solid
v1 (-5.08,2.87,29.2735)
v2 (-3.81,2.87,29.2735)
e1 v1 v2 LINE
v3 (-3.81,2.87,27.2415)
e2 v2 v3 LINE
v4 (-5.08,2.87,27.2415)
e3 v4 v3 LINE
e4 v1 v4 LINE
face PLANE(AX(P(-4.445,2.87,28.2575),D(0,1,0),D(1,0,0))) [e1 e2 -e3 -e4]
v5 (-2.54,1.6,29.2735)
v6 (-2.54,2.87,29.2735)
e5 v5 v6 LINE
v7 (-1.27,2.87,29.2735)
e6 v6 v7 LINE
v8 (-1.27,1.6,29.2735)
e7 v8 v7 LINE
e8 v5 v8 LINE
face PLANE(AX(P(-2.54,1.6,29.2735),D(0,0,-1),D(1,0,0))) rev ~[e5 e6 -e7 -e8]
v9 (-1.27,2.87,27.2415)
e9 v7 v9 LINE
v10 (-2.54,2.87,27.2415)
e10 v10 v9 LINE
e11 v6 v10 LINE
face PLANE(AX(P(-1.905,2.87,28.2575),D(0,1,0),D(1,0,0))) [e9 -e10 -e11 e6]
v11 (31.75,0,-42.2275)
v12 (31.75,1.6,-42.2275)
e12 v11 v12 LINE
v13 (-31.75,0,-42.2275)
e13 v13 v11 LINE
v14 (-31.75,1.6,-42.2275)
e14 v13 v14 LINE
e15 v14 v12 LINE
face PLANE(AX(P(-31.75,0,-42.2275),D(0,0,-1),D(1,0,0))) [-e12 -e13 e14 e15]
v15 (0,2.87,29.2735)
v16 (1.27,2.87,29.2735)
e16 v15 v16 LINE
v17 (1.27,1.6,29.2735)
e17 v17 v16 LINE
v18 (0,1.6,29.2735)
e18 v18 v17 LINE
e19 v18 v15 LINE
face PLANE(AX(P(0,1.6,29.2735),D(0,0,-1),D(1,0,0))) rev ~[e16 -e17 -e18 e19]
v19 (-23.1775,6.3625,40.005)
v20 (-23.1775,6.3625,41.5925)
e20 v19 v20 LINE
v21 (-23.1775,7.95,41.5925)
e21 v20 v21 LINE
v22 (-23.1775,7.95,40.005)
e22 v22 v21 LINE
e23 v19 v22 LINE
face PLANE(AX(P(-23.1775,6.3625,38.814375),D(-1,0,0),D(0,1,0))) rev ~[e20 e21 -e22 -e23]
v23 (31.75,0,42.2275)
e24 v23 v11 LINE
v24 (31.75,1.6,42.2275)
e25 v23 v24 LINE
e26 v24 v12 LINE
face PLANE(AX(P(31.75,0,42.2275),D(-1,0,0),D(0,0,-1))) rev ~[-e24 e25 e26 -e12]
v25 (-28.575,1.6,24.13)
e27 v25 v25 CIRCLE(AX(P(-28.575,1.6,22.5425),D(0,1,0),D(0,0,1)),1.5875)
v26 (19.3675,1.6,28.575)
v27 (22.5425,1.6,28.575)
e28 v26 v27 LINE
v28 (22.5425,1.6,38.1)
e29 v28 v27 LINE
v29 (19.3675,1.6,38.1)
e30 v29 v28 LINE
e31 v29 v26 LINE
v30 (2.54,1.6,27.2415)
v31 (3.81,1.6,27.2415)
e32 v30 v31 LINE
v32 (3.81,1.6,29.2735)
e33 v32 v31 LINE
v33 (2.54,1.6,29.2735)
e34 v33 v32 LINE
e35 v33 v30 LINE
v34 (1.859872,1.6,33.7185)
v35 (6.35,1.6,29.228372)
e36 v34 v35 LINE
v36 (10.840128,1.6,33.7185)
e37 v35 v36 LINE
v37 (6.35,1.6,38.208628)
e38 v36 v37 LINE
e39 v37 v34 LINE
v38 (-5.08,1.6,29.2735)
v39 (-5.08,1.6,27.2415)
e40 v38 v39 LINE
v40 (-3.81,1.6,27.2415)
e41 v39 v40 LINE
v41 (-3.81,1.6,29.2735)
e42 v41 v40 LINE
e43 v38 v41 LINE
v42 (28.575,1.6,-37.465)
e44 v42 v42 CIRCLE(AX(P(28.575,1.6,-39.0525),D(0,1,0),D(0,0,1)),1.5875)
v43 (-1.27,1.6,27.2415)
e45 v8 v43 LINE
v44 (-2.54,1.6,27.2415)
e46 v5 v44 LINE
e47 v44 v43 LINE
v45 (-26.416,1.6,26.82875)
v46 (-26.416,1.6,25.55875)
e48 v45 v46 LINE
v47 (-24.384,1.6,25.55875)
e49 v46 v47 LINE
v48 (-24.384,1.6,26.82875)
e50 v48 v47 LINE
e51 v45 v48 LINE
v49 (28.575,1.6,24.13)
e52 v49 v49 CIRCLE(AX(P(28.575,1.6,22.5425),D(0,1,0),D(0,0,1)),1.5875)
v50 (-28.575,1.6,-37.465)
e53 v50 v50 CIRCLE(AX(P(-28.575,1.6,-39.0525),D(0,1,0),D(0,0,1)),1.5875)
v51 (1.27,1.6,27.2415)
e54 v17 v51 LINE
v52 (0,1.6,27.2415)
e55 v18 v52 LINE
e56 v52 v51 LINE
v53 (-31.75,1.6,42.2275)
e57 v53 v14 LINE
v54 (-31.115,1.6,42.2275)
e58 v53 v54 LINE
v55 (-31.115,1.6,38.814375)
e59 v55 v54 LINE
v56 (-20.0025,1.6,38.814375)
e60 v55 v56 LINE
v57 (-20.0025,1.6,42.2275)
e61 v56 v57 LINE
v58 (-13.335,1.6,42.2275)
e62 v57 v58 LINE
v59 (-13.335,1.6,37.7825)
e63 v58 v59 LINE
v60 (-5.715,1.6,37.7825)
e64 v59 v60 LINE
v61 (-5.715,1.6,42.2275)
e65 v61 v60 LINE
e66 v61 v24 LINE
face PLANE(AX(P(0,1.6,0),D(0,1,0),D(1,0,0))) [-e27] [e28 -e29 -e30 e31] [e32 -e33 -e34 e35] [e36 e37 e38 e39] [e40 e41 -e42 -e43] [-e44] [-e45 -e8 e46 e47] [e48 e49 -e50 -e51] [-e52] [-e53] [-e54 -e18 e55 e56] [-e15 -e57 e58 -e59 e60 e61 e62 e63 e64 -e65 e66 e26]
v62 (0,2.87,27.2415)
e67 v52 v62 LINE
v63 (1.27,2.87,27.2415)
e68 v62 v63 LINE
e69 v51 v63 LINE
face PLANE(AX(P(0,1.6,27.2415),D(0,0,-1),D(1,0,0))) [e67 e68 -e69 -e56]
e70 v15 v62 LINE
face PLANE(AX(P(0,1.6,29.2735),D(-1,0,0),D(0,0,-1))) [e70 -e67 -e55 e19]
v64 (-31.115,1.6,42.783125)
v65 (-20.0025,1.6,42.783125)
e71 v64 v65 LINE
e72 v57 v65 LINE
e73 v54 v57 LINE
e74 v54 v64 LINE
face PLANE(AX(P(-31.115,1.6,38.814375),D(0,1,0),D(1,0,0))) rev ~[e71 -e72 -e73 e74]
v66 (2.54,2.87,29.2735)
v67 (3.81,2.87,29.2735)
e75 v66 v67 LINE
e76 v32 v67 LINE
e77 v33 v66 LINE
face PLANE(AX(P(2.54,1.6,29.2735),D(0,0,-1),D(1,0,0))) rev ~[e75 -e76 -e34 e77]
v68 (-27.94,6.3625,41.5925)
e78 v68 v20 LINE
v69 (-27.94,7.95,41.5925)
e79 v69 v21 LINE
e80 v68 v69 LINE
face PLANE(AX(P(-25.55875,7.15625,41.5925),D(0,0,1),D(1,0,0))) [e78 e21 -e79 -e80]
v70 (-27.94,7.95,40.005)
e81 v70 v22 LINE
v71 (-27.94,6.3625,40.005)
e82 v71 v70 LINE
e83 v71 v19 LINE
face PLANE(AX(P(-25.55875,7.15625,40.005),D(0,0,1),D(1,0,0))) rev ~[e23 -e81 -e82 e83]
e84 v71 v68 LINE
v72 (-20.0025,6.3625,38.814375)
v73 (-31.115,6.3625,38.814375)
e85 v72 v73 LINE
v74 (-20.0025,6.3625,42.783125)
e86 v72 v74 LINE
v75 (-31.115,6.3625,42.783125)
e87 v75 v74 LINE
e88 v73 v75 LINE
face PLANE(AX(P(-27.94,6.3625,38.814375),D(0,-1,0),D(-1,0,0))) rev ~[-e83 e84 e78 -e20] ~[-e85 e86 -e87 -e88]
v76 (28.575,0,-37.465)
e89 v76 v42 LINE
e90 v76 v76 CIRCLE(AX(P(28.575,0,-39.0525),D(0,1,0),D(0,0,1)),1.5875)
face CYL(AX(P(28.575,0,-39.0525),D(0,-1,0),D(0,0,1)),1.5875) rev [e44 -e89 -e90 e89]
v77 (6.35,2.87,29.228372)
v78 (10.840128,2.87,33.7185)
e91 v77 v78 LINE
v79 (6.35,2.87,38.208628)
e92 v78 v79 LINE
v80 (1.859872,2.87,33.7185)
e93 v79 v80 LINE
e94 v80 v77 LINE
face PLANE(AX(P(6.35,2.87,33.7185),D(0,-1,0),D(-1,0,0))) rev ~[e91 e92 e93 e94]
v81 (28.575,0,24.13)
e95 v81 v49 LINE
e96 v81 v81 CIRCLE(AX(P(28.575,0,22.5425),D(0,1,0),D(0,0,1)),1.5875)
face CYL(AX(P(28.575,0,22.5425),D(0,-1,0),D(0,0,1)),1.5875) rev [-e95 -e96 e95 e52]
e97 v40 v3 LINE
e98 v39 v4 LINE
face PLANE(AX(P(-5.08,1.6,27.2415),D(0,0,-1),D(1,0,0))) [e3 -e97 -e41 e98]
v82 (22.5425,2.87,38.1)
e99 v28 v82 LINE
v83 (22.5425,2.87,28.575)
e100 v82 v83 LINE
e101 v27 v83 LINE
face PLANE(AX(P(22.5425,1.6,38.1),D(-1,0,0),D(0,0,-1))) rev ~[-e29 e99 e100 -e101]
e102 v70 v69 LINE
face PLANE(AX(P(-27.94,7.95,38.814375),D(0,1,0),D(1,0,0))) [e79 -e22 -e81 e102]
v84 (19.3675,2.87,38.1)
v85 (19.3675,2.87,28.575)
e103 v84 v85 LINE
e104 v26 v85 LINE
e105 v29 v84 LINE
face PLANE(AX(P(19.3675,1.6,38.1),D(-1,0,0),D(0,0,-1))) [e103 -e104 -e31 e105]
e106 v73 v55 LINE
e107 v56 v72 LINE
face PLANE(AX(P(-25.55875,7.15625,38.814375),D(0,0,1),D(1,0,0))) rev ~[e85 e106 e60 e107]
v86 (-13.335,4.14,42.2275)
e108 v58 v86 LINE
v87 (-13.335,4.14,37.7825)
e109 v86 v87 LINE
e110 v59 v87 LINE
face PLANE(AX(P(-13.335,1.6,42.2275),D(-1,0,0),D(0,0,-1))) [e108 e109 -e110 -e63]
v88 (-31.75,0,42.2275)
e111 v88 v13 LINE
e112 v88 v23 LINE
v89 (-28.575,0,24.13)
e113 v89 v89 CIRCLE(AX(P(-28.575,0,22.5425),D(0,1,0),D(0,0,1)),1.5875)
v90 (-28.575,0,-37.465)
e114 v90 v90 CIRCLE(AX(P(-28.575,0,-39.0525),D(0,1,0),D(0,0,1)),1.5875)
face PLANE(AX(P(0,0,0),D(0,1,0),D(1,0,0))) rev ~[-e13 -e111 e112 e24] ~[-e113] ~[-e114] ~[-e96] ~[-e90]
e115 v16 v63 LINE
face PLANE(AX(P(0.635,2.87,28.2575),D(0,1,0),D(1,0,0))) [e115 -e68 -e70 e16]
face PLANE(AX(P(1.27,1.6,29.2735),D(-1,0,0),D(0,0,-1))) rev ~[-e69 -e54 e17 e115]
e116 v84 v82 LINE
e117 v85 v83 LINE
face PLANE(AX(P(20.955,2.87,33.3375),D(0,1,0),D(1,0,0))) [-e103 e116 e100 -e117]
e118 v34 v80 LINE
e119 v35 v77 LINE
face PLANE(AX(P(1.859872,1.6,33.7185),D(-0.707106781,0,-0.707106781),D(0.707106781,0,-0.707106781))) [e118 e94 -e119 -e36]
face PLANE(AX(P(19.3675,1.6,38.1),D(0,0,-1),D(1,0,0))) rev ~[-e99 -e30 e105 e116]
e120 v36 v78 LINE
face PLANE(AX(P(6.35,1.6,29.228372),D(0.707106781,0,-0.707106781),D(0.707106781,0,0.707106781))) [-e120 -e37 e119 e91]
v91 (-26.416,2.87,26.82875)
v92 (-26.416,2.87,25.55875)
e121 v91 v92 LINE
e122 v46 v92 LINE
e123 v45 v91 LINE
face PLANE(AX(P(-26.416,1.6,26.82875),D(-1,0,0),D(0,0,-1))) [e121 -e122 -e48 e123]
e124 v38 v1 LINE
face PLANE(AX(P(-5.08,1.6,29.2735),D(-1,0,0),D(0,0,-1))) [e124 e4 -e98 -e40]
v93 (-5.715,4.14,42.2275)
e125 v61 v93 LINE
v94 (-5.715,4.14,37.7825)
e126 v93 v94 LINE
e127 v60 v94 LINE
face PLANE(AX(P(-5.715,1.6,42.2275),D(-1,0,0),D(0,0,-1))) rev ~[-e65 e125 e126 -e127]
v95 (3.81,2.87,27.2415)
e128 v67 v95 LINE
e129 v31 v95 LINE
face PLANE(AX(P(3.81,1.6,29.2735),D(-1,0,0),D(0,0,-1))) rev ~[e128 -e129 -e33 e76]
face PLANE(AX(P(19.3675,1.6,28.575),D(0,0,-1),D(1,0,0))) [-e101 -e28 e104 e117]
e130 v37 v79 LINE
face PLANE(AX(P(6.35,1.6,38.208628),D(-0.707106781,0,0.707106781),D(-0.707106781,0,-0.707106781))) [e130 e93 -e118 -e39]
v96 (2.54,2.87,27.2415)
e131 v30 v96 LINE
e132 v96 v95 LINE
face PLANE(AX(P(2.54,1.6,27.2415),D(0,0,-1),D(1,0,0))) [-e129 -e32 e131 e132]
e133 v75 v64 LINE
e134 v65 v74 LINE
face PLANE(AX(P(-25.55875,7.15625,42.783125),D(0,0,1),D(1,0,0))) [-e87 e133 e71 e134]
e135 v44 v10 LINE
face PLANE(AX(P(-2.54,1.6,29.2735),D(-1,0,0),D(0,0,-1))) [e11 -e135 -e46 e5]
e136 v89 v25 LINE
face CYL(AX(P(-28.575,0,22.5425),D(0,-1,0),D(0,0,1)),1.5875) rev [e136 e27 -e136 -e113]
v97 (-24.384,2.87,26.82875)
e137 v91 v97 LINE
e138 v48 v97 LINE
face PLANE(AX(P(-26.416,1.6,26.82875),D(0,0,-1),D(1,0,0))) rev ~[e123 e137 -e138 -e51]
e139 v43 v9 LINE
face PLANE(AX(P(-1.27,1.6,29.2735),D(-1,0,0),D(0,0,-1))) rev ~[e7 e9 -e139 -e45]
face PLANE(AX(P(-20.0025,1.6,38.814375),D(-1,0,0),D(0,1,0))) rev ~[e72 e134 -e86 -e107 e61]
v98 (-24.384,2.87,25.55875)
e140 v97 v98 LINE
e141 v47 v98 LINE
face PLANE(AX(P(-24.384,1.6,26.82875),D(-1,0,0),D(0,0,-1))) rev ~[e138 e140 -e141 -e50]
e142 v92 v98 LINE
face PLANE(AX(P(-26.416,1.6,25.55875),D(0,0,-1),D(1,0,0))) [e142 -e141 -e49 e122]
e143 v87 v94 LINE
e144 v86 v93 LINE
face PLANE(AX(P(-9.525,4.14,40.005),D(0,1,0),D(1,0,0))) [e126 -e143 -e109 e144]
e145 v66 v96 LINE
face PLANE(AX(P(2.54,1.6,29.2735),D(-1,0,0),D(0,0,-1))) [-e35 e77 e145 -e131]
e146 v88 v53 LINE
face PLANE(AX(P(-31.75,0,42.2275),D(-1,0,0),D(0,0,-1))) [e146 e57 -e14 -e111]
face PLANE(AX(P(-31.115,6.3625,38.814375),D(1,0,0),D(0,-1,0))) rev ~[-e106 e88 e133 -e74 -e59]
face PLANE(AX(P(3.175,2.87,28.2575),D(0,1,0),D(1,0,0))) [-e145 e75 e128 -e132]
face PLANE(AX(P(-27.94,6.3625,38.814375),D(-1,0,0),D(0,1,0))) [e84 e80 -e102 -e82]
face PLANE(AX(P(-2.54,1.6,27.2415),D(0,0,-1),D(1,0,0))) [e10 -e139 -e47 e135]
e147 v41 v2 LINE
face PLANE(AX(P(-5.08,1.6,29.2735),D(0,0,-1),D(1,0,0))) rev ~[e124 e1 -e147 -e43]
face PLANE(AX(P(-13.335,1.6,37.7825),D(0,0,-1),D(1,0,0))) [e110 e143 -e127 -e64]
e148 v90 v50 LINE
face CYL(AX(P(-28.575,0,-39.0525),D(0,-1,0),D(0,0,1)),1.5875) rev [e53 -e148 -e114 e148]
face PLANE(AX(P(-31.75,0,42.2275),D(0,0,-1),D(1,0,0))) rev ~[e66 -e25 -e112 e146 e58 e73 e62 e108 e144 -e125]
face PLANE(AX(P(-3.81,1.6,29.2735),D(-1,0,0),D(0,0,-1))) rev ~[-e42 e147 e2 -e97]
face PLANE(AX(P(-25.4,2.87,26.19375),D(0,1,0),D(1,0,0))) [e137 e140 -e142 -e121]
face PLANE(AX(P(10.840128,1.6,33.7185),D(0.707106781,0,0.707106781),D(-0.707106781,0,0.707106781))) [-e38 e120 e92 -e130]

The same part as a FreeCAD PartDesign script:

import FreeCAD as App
import Part
import Sketcher

V = App.Vector
Q = App.Units.Quantity


def add_polygon(sketch, points):
    """Adds a closed chain of lines whose ends are joined by coincident constraints."""
    first, n = sketch.GeometryCount, len(points)
    for a, b in zip(points, points[1:] + points[:1]):
        sketch.addGeometry(Part.LineSegment(App.Vector(*a, 0), App.Vector(*b, 0)), False)
    for i in range(n):
        sketch.addConstraint(Sketcher.Constraint("Coincident", first + i, 2, first + (i + 1) % n, 1))

doc = App.newDocument("Part")
body = doc.addObject("PartDesign::Body", "Body")

sketch1 = body.newObject("Sketcher::SketchObject", "Sketch")
sketch1.AttachmentSupport = (doc.getObject("XZ_Plane"), [""])
sketch1.MapMode = "FlatFace"
add_polygon(sketch1, [(-31.8, -42.2), (-31.8, 42.2), (31.8, 42.2), (31.8, -42.2)])
sketch1.addGeometry(Part.Circle(V(-28.6, 22.5, 0), V(0, 0, 1), 1.6), False)
sketch1.addGeometry(Part.Circle(V(28.6, 22.5, 0), V(0, 0, 1), 1.6), False)
sketch1.addGeometry(Part.Circle(V(-28.6, -39.1, 0), V(0, 0, 1), 1.6), False)
sketch1.addGeometry(Part.Circle(V(28.6, -39.1, 0), V(0, 0, 1), 1.6), False)
sketch1.addConstraint([
    Sketcher.Constraint("Vertical", 0),
    Sketcher.Constraint("Horizontal", 1),
    Sketcher.Constraint("Vertical", 2),
    Sketcher.Constraint("Horizontal", 3),
    Sketcher.Constraint("Equal", 4, 5),
    Sketcher.Constraint("Equal", 5, 6),
    Sketcher.Constraint("Equal", 6, 7),
    Sketcher.Constraint("Symmetric", 0, 2, 2, 2, -1, 1),
    Sketcher.Constraint("Symmetric", 4, 3, 5, 3, -2),
    Sketcher.Constraint("Symmetric", 6, 3, 7, 3, -2),
    Sketcher.Constraint("Vertical", 4, 3, 6, 3),
    Sketcher.Constraint("Diameter", 4, Q("0.125 in")),
    Sketcher.Constraint("DistanceX", 1, 1, 1, 2, Q("2.5 in")),
    Sketcher.Constraint("DistanceY", 6, 3, 0, 2, Q("3.2 in")),
    Sketcher.Constraint("DistanceY", 0, 1, 0, 2, Q("3.325 in")),
    Sketcher.Constraint("DistanceX", 4, 3, 5, 3, Q("2.25 in")),
    Sketcher.Constraint("DistanceY", 2, 2, 5, 3, Q("2.55 in")),
])
pad1 = body.newObject("PartDesign::Pad", "Pad")
pad1.Profile = sketch1
pad1.Length = 1.6
pad1.Reversed = True

sketch2 = body.newObject("Sketcher::SketchObject", "Sketch001")
sketch2.AttachmentSupport = (doc.getObject("XZ_Plane"), [""])
sketch2.MapMode = "FlatFace"
sketch2.AttachmentOffset = App.Placement(V(0, 0, -1.6), App.Rotation())
add_polygon(sketch2, [(10.8, 33.7), (6.3, 29.2), (1.9, 33.7), (6.3, 38.2)])
add_polygon(sketch2, [(-2.5, 27.2), (-2.5, 29.3), (-1.3, 29.3), (-1.3, 27.2)])
add_polygon(sketch2, [(-5.1, 27.2), (-5.1, 29.3), (-3.8, 29.3), (-3.8, 27.2)])
add_polygon(sketch2, [(0, 27.2), (0, 29.3), (1.3, 29.3), (1.3, 27.2)])
add_polygon(sketch2, [(2.5, 27.2), (2.5, 29.3), (3.8, 29.3), (3.8, 27.2)])
add_polygon(sketch2, [(19.4, 28.6), (19.4, 38.1), (22.5, 38.1), (22.5, 28.6)])
add_polygon(sketch2, [(-26.4, 25.6), (-26.4, 26.8), (-24.4, 26.8), (-24.4, 25.6)])
sketch2.addConstraint([
    Sketcher.Constraint("Vertical", 4),
    Sketcher.Constraint("Horizontal", 5),
    Sketcher.Constraint("Vertical", 6),
    Sketcher.Constraint("Horizontal", 7),
    Sketcher.Constraint("Vertical", 8),
    Sketcher.Constraint("Horizontal", 9),
    Sketcher.Constraint("Vertical", 10),
    Sketcher.Constraint("Horizontal", 11),
    Sketcher.Constraint("Vertical", 12),
    Sketcher.Constraint("Horizontal", 13),
    Sketcher.Constraint("Vertical", 14),
    Sketcher.Constraint("Horizontal", 15),
    Sketcher.Constraint("Vertical", 16),
    Sketcher.Constraint("Horizontal", 17),
    Sketcher.Constraint("Vertical", 18),
    Sketcher.Constraint("Horizontal", 19),
    Sketcher.Constraint("Vertical", 20),
    Sketcher.Constraint("Horizontal", 21),
    Sketcher.Constraint("Vertical", 22),
    Sketcher.Constraint("Horizontal", 23),
    Sketcher.Constraint("Vertical", 24),
    Sketcher.Constraint("Horizontal", 25),
    Sketcher.Constraint("Vertical", 26),
    Sketcher.Constraint("Horizontal", 27),
    Sketcher.Constraint("Symmetric", 5, 2, 13, 2, -2),
    Sketcher.Constraint("Symmetric", 4, 2, 16, 2, -2),
    Sketcher.Constraint("Symmetric", 9, 2, 17, 2, -2),
    Sketcher.Constraint("PointOnObject", 12, 2, -2),
    Sketcher.Constraint("Perpendicular", 0, 1),
    Sketcher.Constraint("Perpendicular", 1, 2),
    Sketcher.Constraint("Perpendicular", 2, 3),
    Sketcher.Constraint("Horizontal", 1, 2, 3, 2),
    Sketcher.Constraint("Horizontal", 7, 2, 10, 2),
    Sketcher.Constraint("Horizontal", 11, 2, 14, 2),
    Sketcher.Constraint("Horizontal", 15, 2, 18, 2),
    Sketcher.Constraint("Vertical", 0, 2, 2, 2),
    Sketcher.Constraint("Equal", 7, 9),
    Sketcher.Constraint("Equal", 11, 13),
    Sketcher.Constraint("Equal", 15, 17),
    Sketcher.Constraint("Equal", 27, 4),
    Sketcher.Constraint("Equal", 19, 24),
    Sketcher.Constraint("DistanceX", 5, 1, 5, 2, Q("0.05 in")),
    Sketcher.Constraint("DistanceX", 25, 1, 25, 2, Q("0.08 in")),
    Sketcher.Constraint("DistanceY", -1, 1, 20, 2, Q("1.5 in")),
    Sketcher.Constraint("DistanceX", 5, 2, 0, 2, Q("0.3 in")),
    Sketcher.Constraint("Distance", 0, Q("0.25 in")),
    Sketcher.Constraint("DistanceX", 21, 1, 21, 2, Q("0.125 in")),
    Sketcher.Constraint("DistanceY", 20, 1, 20, 2, Q("0.375 in")),
    Sketcher.Constraint("DistanceX", 24, 2, -1, 1, Q("1.04 in")),
    Sketcher.Constraint("DistanceY", 4, 2, 1, 2, Q("0.175 in")),
    Sketcher.Constraint("DistanceY", -1, 1, 1, 2, Q("1.3275 in")),
    Sketcher.Constraint("DistanceX", -1, 1, 20, 2, Q("0.7625 in")),
    Sketcher.Constraint("DistanceY", -1, 1, 24, 2, 26.82875),
])
pad2 = body.newObject("PartDesign::Pad", "Pad001")
pad2.Profile = sketch2
pad2.Length = Q("0.05 in")
pad2.Reversed = True

sketch3 = body.newObject("Sketcher::SketchObject", "Sketch002")
sketch3.AttachmentSupport = (doc.getObject("XZ_Plane"), [""])
sketch3.MapMode = "FlatFace"
sketch3.AttachmentOffset = App.Placement(V(0, 0, -1.6), App.Rotation())
add_polygon(sketch3, [(-13.3, 37.8), (-13.3, 42.2), (-5.7, 42.2), (-5.7, 37.8)])
sketch3.addConstraint([
    Sketcher.Constraint("Vertical", 0),
    Sketcher.Constraint("Horizontal", 1),
    Sketcher.Constraint("Vertical", 2),
    Sketcher.Constraint("Horizontal", 3),
    Sketcher.Constraint("DistanceX", 1, 1, 1, 2, Q("0.3 in")),
    Sketcher.Constraint("DistanceY", 0, 1, 0, 2, Q("0.175 in")),
    Sketcher.Constraint("DistanceX", 0, 2, -1, 1, Q("0.525 in")),
    Sketcher.Constraint("DistanceY", -1, 1, 0, 2, Q("1.6625 in")),
])
pad3 = body.newObject("PartDesign::Pad", "Pad002")
pad3.Profile = sketch3
pad3.Length = Q("0.1 in")
pad3.Reversed = True

sketch4 = body.newObject("Sketcher::SketchObject", "Sketch003")
sketch4.AttachmentSupport = (doc.getObject("XY_Plane"), [""])
sketch4.MapMode = "FlatFace"
sketch4.AttachmentOffset = App.Placement(V(0, 0, 40.79875), App.Rotation())
add_polygon(sketch4, [(-27.9, 8), (-27.9, 6.4), (-31.1, 6.4), (-31.1, 1.6), (-20, 1.6), (-20, 6.4), (-23.2, 6.4), (-23.2, 8)])
sketch4.addConstraint([
    Sketcher.Constraint("Vertical", 0),
    Sketcher.Constraint("Horizontal", 1),
    Sketcher.Constraint("Vertical", 2),
    Sketcher.Constraint("Horizontal", 3),
    Sketcher.Constraint("Vertical", 4),
    Sketcher.Constraint("Horizontal", 5),
    Sketcher.Constraint("Vertical", 6),
    Sketcher.Constraint("Horizontal", 7),
    Sketcher.Constraint("Horizontal", 1, 2, 4, 2),
    Sketcher.Constraint("Equal", 1, 5),
    Sketcher.Constraint("Equal", 7, 2),
    Sketcher.Constraint("DistanceX", 0, 2, -1, 1, Q("1.1 in")),
    Sketcher.Constraint("DistanceX", 1, 2, 1, 1, Q("0.125 in")),
    Sketcher.Constraint("DistanceX", 3, 1, 3, 2, Q("0.4375 in")),
    Sketcher.Constraint("DistanceY", 0, 2, 0, 1, Q("0.0625 in")),
    Sketcher.Constraint("DistanceY", -1, 1, 0, 2, 6.3625),
])
pad4 = body.newObject("PartDesign::Pad", "Pad003")
pad4.Profile = sketch4
pad4.Type = "TwoLengths"
pad4.Length = Q("0.078125 in")
pad4.Length2 = Q("0.078125 in")

sketch5 = body.newObject("Sketcher::SketchObject", "Sketch004")
sketch5.AttachmentSupport = (doc.getObject("XY_Plane"), [""])
sketch5.MapMode = "FlatFace"
sketch5.AttachmentOffset = App.Placement(V(0, 0, 1.6375 * 25.4), App.Rotation())
add_polygon(sketch5, [(-27.9, 8), (-27.9, 6.4), (-23.2, 6.4), (-23.2, 8)])
sketch5.addConstraint([
    Sketcher.Constraint("Vertical", 0),
    Sketcher.Constraint("Horizontal", 1),
    Sketcher.Constraint("Vertical", 2),
    Sketcher.Constraint("Horizontal", 3),
    Sketcher.Constraint("DistanceX", 0, 2, -1, 1, Q("1.1 in")),
    Sketcher.Constraint("DistanceX", 1, 1, 1, 2, Q("0.1875 in")),
    Sketcher.Constraint("DistanceY", 0, 2, 0, 1, Q("0.0625 in")),
    Sketcher.Constraint("DistanceY", -1, 1, 0, 2, 6.3625),
])
pocket1 = body.newObject("PartDesign::Pocket", "Pocket")
pocket1.Profile = sketch5
pocket1.Type = "UpToFirst"
pocket1.Reversed = True

sketch6 = body.newObject("Sketcher::SketchObject", "Sketch005")
sketch6.AttachmentSupport = (doc.getObject("XY_Plane"), [""])
sketch6.MapMode = "FlatFace"
sketch6.AttachmentOffset = App.Placement(V(0, 0, 1.575 * 25.4), App.Rotation())
add_polygon(sketch6, [(-27.9, 8), (-27.9, 6.4), (-23.2, 6.4), (-23.2, 8)])
sketch6.addConstraint([
    Sketcher.Constraint("Vertical", 0),
    Sketcher.Constraint("Horizontal", 1),
    Sketcher.Constraint("Vertical", 2),
    Sketcher.Constraint("Horizontal", 3),
    Sketcher.Constraint("DistanceX", 0, 2, -1, 1, Q("1.1 in")),
    Sketcher.Constraint("DistanceX", 1, 1, 1, 2, Q("0.1875 in")),
    Sketcher.Constraint("DistanceY", 0, 2, 0, 1, Q("0.0625 in")),
    Sketcher.Constraint("DistanceY", -1, 1, 0, 2, 6.3625),
])
pocket2 = body.newObject("PartDesign::Pocket", "Pocket001")
pocket2.Profile = sketch6
pocket2.Type = "UpToFirst"

doc.recompute()
